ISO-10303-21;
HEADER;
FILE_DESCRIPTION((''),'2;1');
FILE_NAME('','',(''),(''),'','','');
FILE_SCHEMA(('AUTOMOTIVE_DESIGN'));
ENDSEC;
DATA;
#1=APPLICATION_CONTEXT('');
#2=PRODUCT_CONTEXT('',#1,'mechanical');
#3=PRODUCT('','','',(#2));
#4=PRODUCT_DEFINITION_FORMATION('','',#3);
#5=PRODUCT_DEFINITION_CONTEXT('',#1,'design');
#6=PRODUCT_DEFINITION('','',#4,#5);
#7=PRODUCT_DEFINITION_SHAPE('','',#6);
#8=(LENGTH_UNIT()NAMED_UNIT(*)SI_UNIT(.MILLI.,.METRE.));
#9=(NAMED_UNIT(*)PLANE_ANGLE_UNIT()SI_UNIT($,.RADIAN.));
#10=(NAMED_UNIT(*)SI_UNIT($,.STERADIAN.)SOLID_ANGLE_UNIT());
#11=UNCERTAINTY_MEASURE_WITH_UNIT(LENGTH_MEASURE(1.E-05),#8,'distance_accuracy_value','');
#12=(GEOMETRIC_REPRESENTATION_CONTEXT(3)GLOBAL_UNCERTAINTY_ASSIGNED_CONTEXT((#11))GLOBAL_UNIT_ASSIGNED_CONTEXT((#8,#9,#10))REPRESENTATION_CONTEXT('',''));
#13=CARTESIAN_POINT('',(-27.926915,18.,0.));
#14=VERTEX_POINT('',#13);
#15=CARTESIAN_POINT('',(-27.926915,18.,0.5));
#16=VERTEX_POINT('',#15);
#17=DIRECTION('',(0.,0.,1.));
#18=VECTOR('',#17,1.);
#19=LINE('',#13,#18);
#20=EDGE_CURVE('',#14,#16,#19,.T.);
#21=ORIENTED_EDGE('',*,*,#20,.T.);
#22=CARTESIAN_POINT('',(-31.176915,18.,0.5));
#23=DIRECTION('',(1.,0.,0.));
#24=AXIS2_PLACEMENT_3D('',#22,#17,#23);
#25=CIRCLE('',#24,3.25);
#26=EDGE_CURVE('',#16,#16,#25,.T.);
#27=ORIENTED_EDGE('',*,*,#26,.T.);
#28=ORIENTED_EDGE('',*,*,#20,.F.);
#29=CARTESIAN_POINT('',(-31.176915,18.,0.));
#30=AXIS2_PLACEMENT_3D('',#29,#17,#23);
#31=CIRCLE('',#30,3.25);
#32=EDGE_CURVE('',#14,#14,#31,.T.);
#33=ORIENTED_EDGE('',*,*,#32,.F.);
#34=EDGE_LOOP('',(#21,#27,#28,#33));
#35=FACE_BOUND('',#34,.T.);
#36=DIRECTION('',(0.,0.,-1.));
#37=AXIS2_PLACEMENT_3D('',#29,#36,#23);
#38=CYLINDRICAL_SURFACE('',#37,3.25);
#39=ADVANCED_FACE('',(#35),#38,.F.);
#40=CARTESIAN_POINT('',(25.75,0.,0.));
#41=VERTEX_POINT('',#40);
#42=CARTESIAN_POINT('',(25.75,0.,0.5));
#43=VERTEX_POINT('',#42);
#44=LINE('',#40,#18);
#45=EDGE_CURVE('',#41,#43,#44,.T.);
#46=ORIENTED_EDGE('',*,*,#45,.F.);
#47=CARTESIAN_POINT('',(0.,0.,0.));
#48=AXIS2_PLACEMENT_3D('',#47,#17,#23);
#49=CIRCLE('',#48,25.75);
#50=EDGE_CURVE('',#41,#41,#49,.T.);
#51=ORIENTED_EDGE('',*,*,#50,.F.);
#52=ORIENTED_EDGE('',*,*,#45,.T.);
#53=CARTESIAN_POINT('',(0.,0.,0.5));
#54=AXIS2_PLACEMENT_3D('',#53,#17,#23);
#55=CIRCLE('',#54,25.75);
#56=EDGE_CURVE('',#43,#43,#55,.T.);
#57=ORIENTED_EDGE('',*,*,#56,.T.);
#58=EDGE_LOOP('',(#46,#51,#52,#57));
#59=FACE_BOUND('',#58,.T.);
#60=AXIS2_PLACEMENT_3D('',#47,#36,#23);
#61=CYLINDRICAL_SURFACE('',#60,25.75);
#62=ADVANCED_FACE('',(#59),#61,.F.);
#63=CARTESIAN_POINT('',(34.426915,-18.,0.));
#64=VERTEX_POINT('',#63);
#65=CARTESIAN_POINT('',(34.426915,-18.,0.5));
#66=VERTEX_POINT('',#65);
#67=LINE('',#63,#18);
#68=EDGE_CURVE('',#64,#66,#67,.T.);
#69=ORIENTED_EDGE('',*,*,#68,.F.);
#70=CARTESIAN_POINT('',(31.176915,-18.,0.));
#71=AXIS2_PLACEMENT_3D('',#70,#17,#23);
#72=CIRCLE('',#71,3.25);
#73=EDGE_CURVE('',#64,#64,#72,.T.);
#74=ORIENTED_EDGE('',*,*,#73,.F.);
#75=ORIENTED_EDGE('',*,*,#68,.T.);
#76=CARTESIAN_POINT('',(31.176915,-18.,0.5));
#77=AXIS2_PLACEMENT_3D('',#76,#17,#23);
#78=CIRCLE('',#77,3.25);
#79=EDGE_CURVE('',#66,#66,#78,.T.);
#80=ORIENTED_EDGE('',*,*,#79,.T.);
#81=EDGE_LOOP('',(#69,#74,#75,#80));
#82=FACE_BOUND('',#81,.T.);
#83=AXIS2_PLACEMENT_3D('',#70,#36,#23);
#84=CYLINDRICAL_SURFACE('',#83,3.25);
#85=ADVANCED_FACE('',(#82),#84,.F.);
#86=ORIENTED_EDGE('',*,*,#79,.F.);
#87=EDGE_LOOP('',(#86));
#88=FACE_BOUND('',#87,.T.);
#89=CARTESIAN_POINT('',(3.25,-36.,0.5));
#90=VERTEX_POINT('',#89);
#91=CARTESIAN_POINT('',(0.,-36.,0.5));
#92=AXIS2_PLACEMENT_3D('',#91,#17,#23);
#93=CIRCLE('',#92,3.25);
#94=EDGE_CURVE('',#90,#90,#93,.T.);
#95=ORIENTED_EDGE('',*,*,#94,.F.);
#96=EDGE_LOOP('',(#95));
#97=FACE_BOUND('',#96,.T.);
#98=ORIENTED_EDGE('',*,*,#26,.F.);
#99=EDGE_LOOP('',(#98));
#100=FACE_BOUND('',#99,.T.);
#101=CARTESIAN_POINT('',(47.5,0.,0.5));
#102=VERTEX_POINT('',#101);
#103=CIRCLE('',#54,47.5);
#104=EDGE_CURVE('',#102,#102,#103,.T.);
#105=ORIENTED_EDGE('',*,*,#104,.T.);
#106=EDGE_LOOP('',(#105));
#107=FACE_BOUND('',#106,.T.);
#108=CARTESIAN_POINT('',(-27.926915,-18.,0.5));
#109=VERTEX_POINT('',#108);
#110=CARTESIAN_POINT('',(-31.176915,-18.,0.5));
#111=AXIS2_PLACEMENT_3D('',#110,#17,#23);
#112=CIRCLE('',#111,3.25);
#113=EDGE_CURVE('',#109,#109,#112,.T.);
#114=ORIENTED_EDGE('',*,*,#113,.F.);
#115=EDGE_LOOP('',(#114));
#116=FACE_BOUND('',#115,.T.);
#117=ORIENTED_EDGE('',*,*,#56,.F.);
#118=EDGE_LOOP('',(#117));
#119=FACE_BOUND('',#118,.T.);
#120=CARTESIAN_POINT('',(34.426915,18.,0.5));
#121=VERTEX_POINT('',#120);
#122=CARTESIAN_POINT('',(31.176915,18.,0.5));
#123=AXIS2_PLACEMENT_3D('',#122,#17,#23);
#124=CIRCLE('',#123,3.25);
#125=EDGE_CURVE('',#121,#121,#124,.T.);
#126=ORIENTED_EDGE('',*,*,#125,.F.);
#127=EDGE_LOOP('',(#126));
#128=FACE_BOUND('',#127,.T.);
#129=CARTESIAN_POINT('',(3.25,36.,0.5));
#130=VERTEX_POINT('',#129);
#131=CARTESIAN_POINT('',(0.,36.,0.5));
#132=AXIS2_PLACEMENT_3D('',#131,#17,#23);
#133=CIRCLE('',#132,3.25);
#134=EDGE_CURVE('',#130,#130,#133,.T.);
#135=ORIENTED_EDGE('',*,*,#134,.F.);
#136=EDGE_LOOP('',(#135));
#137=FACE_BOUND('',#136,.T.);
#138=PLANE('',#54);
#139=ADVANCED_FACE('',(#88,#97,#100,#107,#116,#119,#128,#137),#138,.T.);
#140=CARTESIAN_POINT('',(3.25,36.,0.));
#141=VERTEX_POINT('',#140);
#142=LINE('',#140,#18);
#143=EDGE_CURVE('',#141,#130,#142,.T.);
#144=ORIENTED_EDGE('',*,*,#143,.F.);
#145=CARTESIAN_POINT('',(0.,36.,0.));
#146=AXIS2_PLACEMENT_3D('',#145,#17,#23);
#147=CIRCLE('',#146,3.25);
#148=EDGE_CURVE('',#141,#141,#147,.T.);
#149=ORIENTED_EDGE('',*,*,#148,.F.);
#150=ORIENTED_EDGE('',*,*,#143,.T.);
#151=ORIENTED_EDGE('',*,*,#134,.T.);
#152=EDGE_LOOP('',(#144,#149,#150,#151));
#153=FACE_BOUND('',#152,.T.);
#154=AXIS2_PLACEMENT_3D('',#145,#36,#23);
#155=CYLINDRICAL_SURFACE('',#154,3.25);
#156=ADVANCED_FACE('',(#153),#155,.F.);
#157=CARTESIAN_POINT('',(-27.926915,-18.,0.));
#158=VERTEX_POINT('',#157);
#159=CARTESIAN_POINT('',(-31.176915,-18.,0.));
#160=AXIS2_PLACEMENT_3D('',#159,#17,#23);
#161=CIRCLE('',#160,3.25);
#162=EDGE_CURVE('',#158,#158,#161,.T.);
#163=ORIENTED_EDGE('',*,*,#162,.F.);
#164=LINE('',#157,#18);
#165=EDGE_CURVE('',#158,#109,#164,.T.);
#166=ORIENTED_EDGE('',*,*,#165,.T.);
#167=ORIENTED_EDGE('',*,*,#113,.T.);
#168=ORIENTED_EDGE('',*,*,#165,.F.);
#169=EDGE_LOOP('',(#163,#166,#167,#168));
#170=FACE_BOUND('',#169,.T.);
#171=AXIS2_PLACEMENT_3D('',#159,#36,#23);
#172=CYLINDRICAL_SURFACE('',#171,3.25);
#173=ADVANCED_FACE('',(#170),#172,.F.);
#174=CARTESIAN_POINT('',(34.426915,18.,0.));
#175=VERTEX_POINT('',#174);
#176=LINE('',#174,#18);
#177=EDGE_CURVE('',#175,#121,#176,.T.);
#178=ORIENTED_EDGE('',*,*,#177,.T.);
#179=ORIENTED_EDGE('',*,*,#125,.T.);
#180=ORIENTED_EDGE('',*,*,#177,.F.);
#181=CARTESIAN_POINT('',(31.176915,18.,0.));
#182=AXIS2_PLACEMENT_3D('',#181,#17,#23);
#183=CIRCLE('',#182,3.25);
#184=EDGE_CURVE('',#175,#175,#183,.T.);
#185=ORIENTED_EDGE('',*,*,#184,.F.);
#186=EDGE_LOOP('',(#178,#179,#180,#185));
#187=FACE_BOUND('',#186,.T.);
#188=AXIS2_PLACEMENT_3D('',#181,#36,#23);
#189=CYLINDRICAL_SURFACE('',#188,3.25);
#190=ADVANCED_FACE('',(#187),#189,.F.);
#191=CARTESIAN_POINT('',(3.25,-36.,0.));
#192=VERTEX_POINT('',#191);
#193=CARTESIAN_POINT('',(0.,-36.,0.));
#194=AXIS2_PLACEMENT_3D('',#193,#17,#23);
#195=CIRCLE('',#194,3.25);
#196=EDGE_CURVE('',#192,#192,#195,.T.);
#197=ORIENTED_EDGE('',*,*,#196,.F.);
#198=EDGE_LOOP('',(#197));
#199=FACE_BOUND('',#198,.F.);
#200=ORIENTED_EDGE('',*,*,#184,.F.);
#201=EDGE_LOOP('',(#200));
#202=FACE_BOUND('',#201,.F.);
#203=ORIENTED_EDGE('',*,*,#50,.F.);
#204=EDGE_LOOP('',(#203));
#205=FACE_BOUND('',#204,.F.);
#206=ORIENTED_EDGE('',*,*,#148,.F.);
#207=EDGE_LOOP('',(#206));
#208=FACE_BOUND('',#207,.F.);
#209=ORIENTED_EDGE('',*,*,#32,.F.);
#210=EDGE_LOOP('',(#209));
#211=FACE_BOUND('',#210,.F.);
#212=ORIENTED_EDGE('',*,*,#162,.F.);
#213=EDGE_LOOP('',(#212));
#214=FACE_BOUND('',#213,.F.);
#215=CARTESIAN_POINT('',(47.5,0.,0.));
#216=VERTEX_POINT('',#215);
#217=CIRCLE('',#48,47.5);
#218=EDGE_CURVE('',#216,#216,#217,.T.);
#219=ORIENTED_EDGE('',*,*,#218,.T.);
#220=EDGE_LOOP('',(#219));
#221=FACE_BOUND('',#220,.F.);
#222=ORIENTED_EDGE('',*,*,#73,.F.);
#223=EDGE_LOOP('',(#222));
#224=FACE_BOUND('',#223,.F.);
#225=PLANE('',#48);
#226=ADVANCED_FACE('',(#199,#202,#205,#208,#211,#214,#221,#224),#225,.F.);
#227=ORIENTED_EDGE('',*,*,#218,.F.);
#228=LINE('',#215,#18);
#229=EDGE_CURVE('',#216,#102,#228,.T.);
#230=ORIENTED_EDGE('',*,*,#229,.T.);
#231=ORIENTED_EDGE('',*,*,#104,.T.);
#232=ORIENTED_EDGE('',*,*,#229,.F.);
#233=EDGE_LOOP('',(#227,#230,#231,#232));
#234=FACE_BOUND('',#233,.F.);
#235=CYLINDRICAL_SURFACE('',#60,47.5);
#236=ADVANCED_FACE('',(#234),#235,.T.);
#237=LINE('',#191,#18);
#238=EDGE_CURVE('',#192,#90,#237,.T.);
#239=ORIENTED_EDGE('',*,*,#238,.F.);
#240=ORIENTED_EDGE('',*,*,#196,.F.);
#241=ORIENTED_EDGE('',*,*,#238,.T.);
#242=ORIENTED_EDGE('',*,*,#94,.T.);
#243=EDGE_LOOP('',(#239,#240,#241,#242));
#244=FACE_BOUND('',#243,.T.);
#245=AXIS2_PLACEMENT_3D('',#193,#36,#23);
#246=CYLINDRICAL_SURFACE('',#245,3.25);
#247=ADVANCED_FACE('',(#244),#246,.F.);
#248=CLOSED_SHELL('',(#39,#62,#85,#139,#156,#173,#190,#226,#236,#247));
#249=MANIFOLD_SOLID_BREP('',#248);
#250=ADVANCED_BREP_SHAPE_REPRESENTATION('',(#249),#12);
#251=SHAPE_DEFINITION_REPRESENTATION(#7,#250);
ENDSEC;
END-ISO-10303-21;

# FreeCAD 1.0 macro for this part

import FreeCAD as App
import Part
import Sketcher

doc = App.newDocument("Part")
body = doc.addObject("PartDesign::Body", "Body")

sketch1 = body.newObject("Sketcher::SketchObject", "Sketch")
sketch1.AttachmentSupport = (doc.getObject("XY_Plane"), [""])
sketch1.MapMode = "FlatFace"
sketch1.addGeometry([
    Part.Circle(App.Vector(0, 0, 0), App.Vector(0, 0, 1), 47.5),
    Part.Circle(App.Vector(0, -36, 0), App.Vector(0, 0, 1), 3.2),
    Part.Circle(App.Vector(-31.2, -18, 0), App.Vector(0, 0, 1), 3.2),
    Part.Circle(App.Vector(31.2, -18, 0), App.Vector(0, 0, 1), 3.2),
    Part.Circle(App.Vector(-31.2, 18, 0), App.Vector(0, 0, 1), 3.2),
    Part.Circle(App.Vector(0, 0, 0), App.Vector(0, 0, 1), 25.8),
    Part.Circle(App.Vector(0, 36, 0), App.Vector(0, 0, 1), 3.2),
    Part.Circle(App.Vector(31.2, 18, 0), App.Vector(0, 0, 1), 3.2),
], False)
sketch1.addConstraint([
    Sketcher.Constraint("Coincident", 0, 3, -1, 1),
    Sketcher.Constraint("Coincident", 5, 3, -1, 1),
    Sketcher.Constraint("Equal", 1, 2),
    Sketcher.Constraint("Equal", 2, 3),
    Sketcher.Constraint("Equal", 3, 4),
    Sketcher.Constraint("Equal", 4, 6),
    Sketcher.Constraint("Equal", 6, 7),
    Sketcher.Constraint("Symmetric", 3, 3, 4, 3, -1, 1),
    Sketcher.Constraint("Symmetric", 1, 3, 6, 3, -1, 1),
    Sketcher.Constraint("Symmetric", 2, 3, 7, 3, -1, 1),
    Sketcher.Constraint("Symmetric", 2, 3, 3, 3, -2),
    Sketcher.Constraint("PointOnObject", 1, 3, -2),
    Sketcher.Constraint("Diameter", 0, 95.0),
    Sketcher.Constraint("Diameter", 1, 6.5),
    Sketcher.Constraint("Diameter", 5, 51.5),
    Sketcher.Constraint("DistanceY", 1, 3, -1, 1, 36.0),
    Sketcher.Constraint("DistanceY", 2, 3, -1, 1, 18.0),
    Sketcher.Constraint("DistanceX", 2, 3, 3, 3, 62.35383),
])
pad1 = body.newObject("PartDesign::Pad", "Pad")
pad1.Profile = sketch1
pad1.Length = 0.5

doc.recompute()
